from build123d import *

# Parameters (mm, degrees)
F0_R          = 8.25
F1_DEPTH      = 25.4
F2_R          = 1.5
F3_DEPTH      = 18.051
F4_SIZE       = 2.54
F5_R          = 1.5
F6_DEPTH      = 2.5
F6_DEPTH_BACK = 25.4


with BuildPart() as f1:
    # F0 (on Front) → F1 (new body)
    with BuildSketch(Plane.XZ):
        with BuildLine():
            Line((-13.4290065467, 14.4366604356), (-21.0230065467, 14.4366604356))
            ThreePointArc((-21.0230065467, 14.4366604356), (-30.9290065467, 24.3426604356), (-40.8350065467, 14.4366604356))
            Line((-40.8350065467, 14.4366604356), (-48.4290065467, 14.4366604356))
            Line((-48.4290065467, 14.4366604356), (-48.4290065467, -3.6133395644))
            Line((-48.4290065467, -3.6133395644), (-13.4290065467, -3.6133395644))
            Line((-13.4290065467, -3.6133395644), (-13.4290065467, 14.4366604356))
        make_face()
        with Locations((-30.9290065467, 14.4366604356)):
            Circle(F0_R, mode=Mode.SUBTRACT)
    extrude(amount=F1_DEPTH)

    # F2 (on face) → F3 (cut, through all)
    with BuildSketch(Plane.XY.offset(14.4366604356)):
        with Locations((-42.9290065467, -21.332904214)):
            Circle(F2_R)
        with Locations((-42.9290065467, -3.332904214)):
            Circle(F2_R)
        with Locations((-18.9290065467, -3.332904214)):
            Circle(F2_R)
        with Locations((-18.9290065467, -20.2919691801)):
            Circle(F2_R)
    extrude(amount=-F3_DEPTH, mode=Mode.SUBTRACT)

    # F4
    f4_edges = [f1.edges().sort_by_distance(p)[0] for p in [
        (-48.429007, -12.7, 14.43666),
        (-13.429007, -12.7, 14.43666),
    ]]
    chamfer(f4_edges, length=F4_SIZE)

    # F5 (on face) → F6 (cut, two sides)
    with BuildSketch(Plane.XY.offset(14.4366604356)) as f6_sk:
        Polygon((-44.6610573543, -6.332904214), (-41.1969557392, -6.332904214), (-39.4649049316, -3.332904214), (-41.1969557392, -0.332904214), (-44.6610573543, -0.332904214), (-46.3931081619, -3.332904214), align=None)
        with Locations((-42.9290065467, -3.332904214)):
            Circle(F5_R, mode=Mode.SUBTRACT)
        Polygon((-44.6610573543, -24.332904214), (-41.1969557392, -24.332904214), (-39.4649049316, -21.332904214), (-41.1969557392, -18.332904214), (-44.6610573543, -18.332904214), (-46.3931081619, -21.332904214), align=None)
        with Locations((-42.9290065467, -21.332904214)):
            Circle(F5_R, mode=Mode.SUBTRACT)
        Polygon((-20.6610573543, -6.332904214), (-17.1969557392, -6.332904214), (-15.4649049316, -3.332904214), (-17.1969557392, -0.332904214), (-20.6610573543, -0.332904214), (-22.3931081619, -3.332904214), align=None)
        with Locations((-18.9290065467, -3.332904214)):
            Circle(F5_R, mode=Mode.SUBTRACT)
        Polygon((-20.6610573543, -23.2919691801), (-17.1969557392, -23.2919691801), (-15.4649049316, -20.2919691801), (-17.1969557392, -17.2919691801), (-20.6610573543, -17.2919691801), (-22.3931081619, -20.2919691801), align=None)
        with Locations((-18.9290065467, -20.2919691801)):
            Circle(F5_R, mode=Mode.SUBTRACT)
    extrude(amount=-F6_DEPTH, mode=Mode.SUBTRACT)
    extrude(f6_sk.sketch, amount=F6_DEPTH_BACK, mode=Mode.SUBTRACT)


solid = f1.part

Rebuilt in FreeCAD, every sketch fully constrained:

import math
import FreeCAD as App
import Part
import Sketcher
from FreeCAD import Vector
Q = App.Units.Quantity


def edges_at(feature, points):
    """Names of the edges that pass closest to the given points."""
    edges = feature.Shape.Edges
    near = lambda p: min(range(len(edges)), key=lambda i: edges[i].distToShape(Part.Vertex(*p))[0])
    return sorted({f"Edge{near(p) + 1}" for p in points})

doc = App.newDocument("Part")
body = doc.addObject("PartDesign::Body", "Body")

sketch1 = body.newObject("Sketcher::SketchObject", "Sketch")
sketch1.AttachmentSupport = (doc.getObject("XZ_Plane"), [""])
sketch1.MapMode = "FlatFace"
sketch1.addGeometry([
    Part.LineSegment(Vector(-13, 14, 0), Vector(-21, 14, 0)),
    Part.ArcOfCircle(Part.Circle(Vector(-31, 14, 0), Vector(0, 0, 1), 10), math.radians(0), math.radians(180)),
    Part.LineSegment(Vector(-41, 14, 0), Vector(-48, 14, 0)),
    Part.LineSegment(Vector(-48, 14, 0), Vector(-48, -4, 0)),
    Part.LineSegment(Vector(-48, -4, 0), Vector(-13, -4, 0)),
    Part.LineSegment(Vector(-13, -4, 0), Vector(-13, 14, 0)),
    Part.Circle(Vector(-31, 14, 0), Vector(0, 0, 1), 8),
], False)
sketch1.addConstraint([
    Sketcher.Constraint("Coincident", 0, 2, 1, 1),
    Sketcher.Constraint("Coincident", 1, 2, 2, 1),
    Sketcher.Constraint("Coincident", 2, 2, 3, 1),
    Sketcher.Constraint("Coincident", 3, 2, 4, 1),
    Sketcher.Constraint("Coincident", 4, 2, 5, 1),
    Sketcher.Constraint("Coincident", 5, 2, 0, 1),
    Sketcher.Constraint("Horizontal", 0),
    Sketcher.Constraint("Horizontal", 2),
    Sketcher.Constraint("Vertical", 3),
    Sketcher.Constraint("Horizontal", 4),
    Sketcher.Constraint("Vertical", 5),
    Sketcher.Constraint("Coincident", 6, 3, 1, 3),
    Sketcher.Constraint("Horizontal", 6, 3, 0, 2),
    Sketcher.Constraint("Horizontal", 0, 2, 1, 2),
    Sketcher.Constraint("Equal", 0, 2),
    Sketcher.Constraint("Diameter", 6, Q("16.5 mm")),
    Sketcher.Constraint("DistanceX", 4, 1, 4, 2, Q("35 mm")),
    Sketcher.Constraint("Radius", 1, Q("9.906 mm")),
    Sketcher.Constraint("DistanceY", 3, 2, 3, 1, Q("18.05 mm")),
    Sketcher.Constraint("DistanceY", -1, 1, 1, 3, Q("14.43666 mm")),
    Sketcher.Constraint("DistanceX", 1, 3, -1, 1, Q("30.929007 mm")),
])
pad1 = body.newObject("PartDesign::Pad", "Pad")
pad1.Profile = sketch1
pad1.Length = 25.4

sketch2 = body.newObject("Sketcher::SketchObject", "Sketch001")
sketch2.AttachmentSupport = (doc.getObject("XY_Plane"), [""])
sketch2.MapMode = "FlatFace"
sketch2.AttachmentOffset = App.Placement(Vector(0, 0, 14.43666), App.Rotation())
sketch2.addGeometry([
    Part.Circle(Vector(-42.9, -21.3, 0), Vector(0, 0, 1), 1.5),
    Part.Circle(Vector(-42.9, -3.3, 0), Vector(0, 0, 1), 1.5),
    Part.Circle(Vector(-18.9, -3.3, 0), Vector(0, 0, 1), 1.5),
    Part.Circle(Vector(-18.9, -20.3, 0), Vector(0, 0, 1), 1.5),
], False)
sketch2.addConstraint([
    Sketcher.Constraint("Equal", 0, 1),
    Sketcher.Constraint("Equal", 1, 2),
    Sketcher.Constraint("Equal", 2, 3),
    Sketcher.Constraint("Horizontal", 1, 3, 2, 3),
    Sketcher.Constraint("Vertical", 0, 3, 1, 3),
    Sketcher.Constraint("Vertical", 2, 3, 3, 3),
    Sketcher.Constraint("Diameter", 0, Q("3 mm")),
    Sketcher.Constraint("DistanceY", 0, 3, 1, 3, Q("18 mm")),
    Sketcher.Constraint("DistanceX", 1, 3, 2, 3, Q("24 mm")),
    Sketcher.Constraint("DistanceY", 3, 3, -1, 1, Q("20.291969 mm")),
    Sketcher.Constraint("DistanceX", 0, 3, -1, 1, Q("42.929007 mm")),
    Sketcher.Constraint("DistanceY", 0, 3, -1, 1, Q("21.332904 mm")),
])
pocket1 = body.newObject("PartDesign::Pocket", "Pocket")
pocket1.Profile = sketch2
pocket1.Type = "ThroughAll"
doc.recompute()

chamfer = body.newObject("PartDesign::Chamfer", "Chamfer")
chamfer.Base = (pocket1, edges_at(pocket1, [(-48.429, -12.7, 14.437), (-13.429, -12.7, 14.437)]))
chamfer.Size = 2.54

sketch3 = body.newObject("Sketcher::SketchObject", "Sketch002")
sketch3.AttachmentSupport = (doc.getObject("XY_Plane"), [""])
sketch3.MapMode = "FlatFace"
sketch3.AttachmentOffset = App.Placement(Vector(0, 0, 14.43666), App.Rotation())
sketch3.addGeometry([
    Part.LineSegment(Vector(-44.7, -6.3, 0), Vector(-41.2, -6.3, 0)),
    Part.LineSegment(Vector(-41.2, -6.3, 0), Vector(-39.5, -3.3, 0)),
    Part.LineSegment(Vector(-39.5, -3.3, 0), Vector(-41.2, -0.3, 0)),
    Part.LineSegment(Vector(-41.2, -0.3, 0), Vector(-44.7, -0.3, 0)),
    Part.LineSegment(Vector(-44.7, -0.3, 0), Vector(-46.4, -3.3, 0)),
    Part.LineSegment(Vector(-46.4, -3.3, 0), Vector(-44.7, -6.3, 0)),
    Part.Circle(Vector(-42.9, -3.3, 0), Vector(0, 0, 1), 1.5),
    Part.LineSegment(Vector(-44.7, -24.3, 0), Vector(-41.2, -24.3, 0)),
    Part.LineSegment(Vector(-41.2, -24.3, 0), Vector(-39.5, -21.3, 0)),
    Part.LineSegment(Vector(-39.5, -21.3, 0), Vector(-41.2, -18.3, 0)),
    Part.LineSegment(Vector(-41.2, -18.3, 0), Vector(-44.7, -18.3, 0)),
    Part.LineSegment(Vector(-44.7, -18.3, 0), Vector(-46.4, -21.3, 0)),
    Part.LineSegment(Vector(-46.4, -21.3, 0), Vector(-44.7, -24.3, 0)),
    Part.Circle(Vector(-42.9, -21.3, 0), Vector(0, 0, 1), 1.5),
    Part.LineSegment(Vector(-20.7, -6.3, 0), Vector(-17.2, -6.3, 0)),
    Part.LineSegment(Vector(-17.2, -6.3, 0), Vector(-15.5, -3.3, 0)),
    Part.LineSegment(Vector(-15.5, -3.3, 0), Vector(-17.2, -0.3, 0)),
    Part.LineSegment(Vector(-17.2, -0.3, 0), Vector(-20.7, -0.3, 0)),
    Part.LineSegment(Vector(-20.7, -0.3, 0), Vector(-22.4, -3.3, 0)),
    Part.LineSegment(Vector(-22.4, -3.3, 0), Vector(-20.7, -6.3, 0)),
    Part.Circle(Vector(-18.9, -3.3, 0), Vector(0, 0, 1), 1.5),
    Part.LineSegment(Vector(-20.7, -23.3, 0), Vector(-17.2, -23.3, 0)),
    Part.LineSegment(Vector(-17.2, -23.3, 0), Vector(-15.5, -20.3, 0)),
    Part.LineSegment(Vector(-15.5, -20.3, 0), Vector(-17.2, -17.3, 0)),
    Part.LineSegment(Vector(-17.2, -17.3, 0), Vector(-20.7, -17.3, 0)),
    Part.LineSegment(Vector(-20.7, -17.3, 0), Vector(-22.4, -20.3, 0)),
    Part.LineSegment(Vector(-22.4, -20.3, 0), Vector(-20.7, -23.3, 0)),
    Part.Circle(Vector(-18.9, -20.3, 0), Vector(0, 0, 1), 1.5),
], False)
sketch3.addConstraint([
    Sketcher.Constraint("Coincident", 0, 2, 1, 1),
    Sketcher.Constraint("Coincident", 1, 2, 2, 1),
    Sketcher.Constraint("Coincident", 2, 2, 3, 1),
    Sketcher.Constraint("Coincident", 3, 2, 4, 1),
    Sketcher.Constraint("Coincident", 4, 2, 5, 1),
    Sketcher.Constraint("Coincident", 5, 2, 0, 1),
    Sketcher.Constraint("Coincident", 7, 2, 8, 1),
    Sketcher.Constraint("Coincident", 8, 2, 9, 1),
    Sketcher.Constraint("Coincident", 9, 2, 10, 1),
    Sketcher.Constraint("Coincident", 10, 2, 11, 1),
    Sketcher.Constraint("Coincident", 11, 2, 12, 1),
    Sketcher.Constraint("Coincident", 12, 2, 7, 1),
    Sketcher.Constraint("Coincident", 14, 2, 15, 1),
    Sketcher.Constraint("Coincident", 15, 2, 16, 1),
    Sketcher.Constraint("Coincident", 16, 2, 17, 1),
    Sketcher.Constraint("Coincident", 17, 2, 18, 1),
    Sketcher.Constraint("Coincident", 18, 2, 19, 1),
    Sketcher.Constraint("Coincident", 19, 2, 14, 1),
    Sketcher.Constraint("Coincident", 21, 2, 22, 1),
    Sketcher.Constraint("Coincident", 22, 2, 23, 1),
    Sketcher.Constraint("Coincident", 23, 2, 24, 1),
    Sketcher.Constraint("Coincident", 24, 2, 25, 1),
    Sketcher.Constraint("Coincident", 25, 2, 26, 1),
    Sketcher.Constraint("Coincident", 26, 2, 21, 1),
    Sketcher.Constraint("Horizontal", 0),
    Sketcher.Constraint("Horizontal", 3),
    Sketcher.Constraint("Horizontal", 7),
    Sketcher.Constraint("Horizontal", 10),
    Sketcher.Constraint("Horizontal", 14),
    Sketcher.Constraint("Horizontal", 17),
    Sketcher.Constraint("Horizontal", 21),
    Sketcher.Constraint("Horizontal", 24),
    Sketcher.Constraint("Equal", 6, 13),
    Sketcher.Constraint("Equal", 13, 20),
    Sketcher.Constraint("Equal", 20, 27),
    Sketcher.Constraint("Parallel", 1, 4),
    Sketcher.Constraint("Parallel", 2, 5),
    Sketcher.Constraint("Parallel", 4, 8),
    Sketcher.Constraint("Parallel", 5, 9),
    Sketcher.Constraint("Parallel", 8, 11),
    Sketcher.Constraint("Parallel", 9, 12),
    Sketcher.Constraint("Parallel", 11, 15),
    Sketcher.Constraint("Parallel", 12, 16),
    Sketcher.Constraint("Parallel", 15, 18),
    Sketcher.Constraint("Parallel", 16, 19),
    Sketcher.Constraint("Parallel", 18, 22),
    Sketcher.Constraint("Parallel", 19, 23),
    Sketcher.Constraint("Parallel", 22, 25),
    Sketcher.Constraint("Parallel", 23, 26),
    Sketcher.Constraint("Horizontal", 6, 3, 20, 3),
    Sketcher.Constraint("Horizontal", 20, 3, 1, 2),
    Sketcher.Constraint("Horizontal", 1, 2, 4, 2),
    Sketcher.Constraint("Horizontal", 13, 3, 8, 2),
    Sketcher.Constraint("Horizontal", 8, 2, 11, 2),
    Sketcher.Constraint("Horizontal", 5, 2, 14, 2),
    Sketcher.Constraint("Horizontal", 4, 2, 15, 2),
    Sketcher.Constraint("Horizontal", 3, 2, 16, 2),
    Sketcher.Constraint("Horizontal", 15, 2, 18, 2),
    Sketcher.Constraint("Horizontal", 27, 3, 22, 2),
    Sketcher.Constraint("Horizontal", 22, 2, 25, 2),
    Sketcher.Constraint("Vertical", 6, 3, 13, 3),
    Sketcher.Constraint("Vertical", 20, 3, 27, 3),
    Sketcher.Constraint("Vertical", 0, 2, 2, 2),
    Sketcher.Constraint("Vertical", 3, 2, 5, 2),
    Sketcher.Constraint("Vertical", 2, 2, 7, 2),
    Sketcher.Constraint("Vertical", 1, 2, 8, 2),
    Sketcher.Constraint("Vertical", 7, 2, 9, 2),
    Sketcher.Constraint("Vertical", 5, 2, 10, 2),
    Sketcher.Constraint("Vertical", 16, 2, 21, 2),
    Sketcher.Constraint("Vertical", 15, 2, 22, 2),
    Sketcher.Constraint("Vertical", 21, 2, 23, 2),
    Sketcher.Constraint("Vertical", 19, 2, 24, 2),
    Sketcher.Constraint("Equal", 10, 14),
    Sketcher.Constraint("Diameter", 6, Q("3 mm")),
    Sketcher.Constraint("Angle", 1, Q("60 deg")),
    Sketcher.Constraint("DistanceY", 13, 3, 6, 3, Q("18 mm")),
    Sketcher.Constraint("DistanceX", 6, 3, 20, 3, Q("24 mm")),
    Sketcher.Constraint("DistanceY", 0, 2, 6, 3, Q("3 mm")),
    Sketcher.Constraint("DistanceX", 0, 2, 14, 2, Q("24 mm")),
    Sketcher.Constraint("DistanceX", 0, 1, 0, 2, Q("3.464102 mm")),
    Sketcher.Constraint("DistanceX", 6, 3, 1, 2, Q("3.464102 mm")),
    Sketcher.Constraint("DistanceY", 27, 3, -1, 1, Q("20.291969 mm")),
    Sketcher.Constraint("DistanceX", 4, 2, -1, 1, Q("46.393108 mm")),
    Sketcher.Constraint("DistanceY", 6, 3, -1, 1, Q("3.332904 mm")),
])
pocket2 = body.newObject("PartDesign::Pocket", "Pocket001")
pocket2.Profile = sketch3
pocket2.Type = "TwoLengths"
pocket2.Length = 2.5
pocket2.Length2 = 25.4

doc.recompute()
